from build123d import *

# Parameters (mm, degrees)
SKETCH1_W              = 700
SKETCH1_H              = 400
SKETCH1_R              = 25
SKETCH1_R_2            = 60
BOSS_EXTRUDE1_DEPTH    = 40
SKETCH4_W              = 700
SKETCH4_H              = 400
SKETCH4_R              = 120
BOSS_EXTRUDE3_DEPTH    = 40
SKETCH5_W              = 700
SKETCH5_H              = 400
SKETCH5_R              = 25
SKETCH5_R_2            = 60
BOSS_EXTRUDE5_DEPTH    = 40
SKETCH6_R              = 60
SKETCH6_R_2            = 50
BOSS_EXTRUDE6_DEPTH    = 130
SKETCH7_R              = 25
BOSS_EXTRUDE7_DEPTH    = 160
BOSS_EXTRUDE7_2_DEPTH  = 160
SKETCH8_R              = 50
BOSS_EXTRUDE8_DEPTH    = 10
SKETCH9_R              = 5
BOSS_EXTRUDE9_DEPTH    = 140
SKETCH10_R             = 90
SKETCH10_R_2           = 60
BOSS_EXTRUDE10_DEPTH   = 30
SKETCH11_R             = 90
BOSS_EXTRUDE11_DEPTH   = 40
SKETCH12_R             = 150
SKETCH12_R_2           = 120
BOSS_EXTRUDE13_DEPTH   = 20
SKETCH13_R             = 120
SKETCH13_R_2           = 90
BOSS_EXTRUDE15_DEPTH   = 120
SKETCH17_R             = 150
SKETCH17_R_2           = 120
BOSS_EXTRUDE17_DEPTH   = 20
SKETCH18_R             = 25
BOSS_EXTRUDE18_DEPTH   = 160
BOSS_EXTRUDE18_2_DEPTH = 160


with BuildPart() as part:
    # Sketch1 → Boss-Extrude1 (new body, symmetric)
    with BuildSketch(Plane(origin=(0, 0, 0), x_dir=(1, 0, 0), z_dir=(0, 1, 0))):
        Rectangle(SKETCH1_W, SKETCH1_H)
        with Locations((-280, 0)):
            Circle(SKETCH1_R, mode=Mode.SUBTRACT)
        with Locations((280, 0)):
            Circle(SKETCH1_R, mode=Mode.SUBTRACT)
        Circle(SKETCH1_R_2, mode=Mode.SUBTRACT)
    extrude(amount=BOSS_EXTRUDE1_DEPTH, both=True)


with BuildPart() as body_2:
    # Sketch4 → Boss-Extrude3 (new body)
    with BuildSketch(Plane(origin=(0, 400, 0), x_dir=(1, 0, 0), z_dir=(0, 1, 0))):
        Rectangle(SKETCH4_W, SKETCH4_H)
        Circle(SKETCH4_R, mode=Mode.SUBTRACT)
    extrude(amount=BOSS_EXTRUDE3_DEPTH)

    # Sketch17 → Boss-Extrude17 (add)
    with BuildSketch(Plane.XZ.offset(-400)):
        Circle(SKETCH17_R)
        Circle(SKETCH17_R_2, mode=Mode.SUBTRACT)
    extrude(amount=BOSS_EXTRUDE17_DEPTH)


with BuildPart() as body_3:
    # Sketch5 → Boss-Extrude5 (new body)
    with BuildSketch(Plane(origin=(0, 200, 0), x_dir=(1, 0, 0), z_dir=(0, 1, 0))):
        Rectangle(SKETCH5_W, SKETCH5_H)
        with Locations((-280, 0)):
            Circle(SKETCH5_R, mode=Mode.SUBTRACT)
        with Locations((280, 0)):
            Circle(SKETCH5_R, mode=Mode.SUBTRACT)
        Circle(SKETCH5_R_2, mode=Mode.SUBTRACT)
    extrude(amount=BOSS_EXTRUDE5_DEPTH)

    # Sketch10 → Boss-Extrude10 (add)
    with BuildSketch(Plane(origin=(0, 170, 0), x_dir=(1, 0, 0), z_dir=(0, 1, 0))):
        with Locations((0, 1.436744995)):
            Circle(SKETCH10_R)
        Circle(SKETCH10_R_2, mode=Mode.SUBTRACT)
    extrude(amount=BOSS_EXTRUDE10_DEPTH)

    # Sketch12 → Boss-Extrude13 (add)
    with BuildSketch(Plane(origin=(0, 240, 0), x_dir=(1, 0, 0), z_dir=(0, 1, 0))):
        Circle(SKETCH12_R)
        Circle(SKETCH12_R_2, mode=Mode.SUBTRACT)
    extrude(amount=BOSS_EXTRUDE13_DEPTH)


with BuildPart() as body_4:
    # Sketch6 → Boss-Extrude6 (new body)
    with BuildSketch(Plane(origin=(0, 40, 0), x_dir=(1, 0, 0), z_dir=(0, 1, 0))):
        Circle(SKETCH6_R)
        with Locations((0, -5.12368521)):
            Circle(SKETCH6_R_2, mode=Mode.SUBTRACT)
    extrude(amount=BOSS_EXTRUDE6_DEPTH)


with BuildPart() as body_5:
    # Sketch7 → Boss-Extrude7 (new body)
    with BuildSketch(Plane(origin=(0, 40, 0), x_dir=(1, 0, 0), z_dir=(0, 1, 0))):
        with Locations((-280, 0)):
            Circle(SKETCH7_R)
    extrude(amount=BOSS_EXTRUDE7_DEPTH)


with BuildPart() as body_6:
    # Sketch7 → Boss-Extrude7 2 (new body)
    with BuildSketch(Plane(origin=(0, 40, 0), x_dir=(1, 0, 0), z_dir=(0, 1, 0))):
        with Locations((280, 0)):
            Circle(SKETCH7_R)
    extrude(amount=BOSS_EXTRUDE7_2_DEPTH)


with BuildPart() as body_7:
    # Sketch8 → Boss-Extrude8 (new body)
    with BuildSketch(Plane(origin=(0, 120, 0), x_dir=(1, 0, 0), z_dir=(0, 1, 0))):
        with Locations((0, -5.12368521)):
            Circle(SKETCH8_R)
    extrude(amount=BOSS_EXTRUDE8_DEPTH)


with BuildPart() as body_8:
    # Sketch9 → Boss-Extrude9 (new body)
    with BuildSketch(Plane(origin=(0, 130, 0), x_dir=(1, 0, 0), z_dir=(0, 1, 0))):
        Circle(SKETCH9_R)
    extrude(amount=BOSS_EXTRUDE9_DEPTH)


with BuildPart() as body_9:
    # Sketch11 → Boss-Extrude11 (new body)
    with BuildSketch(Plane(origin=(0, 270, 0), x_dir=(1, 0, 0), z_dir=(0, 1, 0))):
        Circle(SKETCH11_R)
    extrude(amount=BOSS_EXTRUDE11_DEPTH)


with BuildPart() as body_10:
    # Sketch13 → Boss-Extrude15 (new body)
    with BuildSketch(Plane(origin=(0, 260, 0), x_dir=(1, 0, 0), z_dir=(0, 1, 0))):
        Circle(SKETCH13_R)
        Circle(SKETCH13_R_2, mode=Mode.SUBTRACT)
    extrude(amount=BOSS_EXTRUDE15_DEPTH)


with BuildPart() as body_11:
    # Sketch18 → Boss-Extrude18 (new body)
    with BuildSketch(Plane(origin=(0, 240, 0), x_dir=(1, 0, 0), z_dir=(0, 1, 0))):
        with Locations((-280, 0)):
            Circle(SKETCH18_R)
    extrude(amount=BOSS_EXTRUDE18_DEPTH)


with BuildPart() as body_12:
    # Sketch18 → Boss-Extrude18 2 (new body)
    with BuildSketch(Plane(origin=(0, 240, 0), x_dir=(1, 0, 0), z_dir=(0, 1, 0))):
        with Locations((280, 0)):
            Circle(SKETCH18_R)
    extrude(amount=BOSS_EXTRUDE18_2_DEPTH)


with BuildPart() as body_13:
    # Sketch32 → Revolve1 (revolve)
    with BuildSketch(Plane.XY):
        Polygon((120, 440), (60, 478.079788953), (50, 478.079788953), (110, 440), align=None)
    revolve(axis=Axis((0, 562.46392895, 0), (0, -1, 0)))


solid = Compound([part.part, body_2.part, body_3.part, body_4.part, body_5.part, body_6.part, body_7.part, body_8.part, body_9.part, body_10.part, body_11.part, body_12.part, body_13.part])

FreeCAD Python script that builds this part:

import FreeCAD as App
import Part
import Sketcher
Q = App.Units.Quantity

doc = App.newDocument("Part")
params = doc.addObject("Spreadsheet::Sheet", "Params")
for row, (alias, value) in enumerate([
    ("sketch1_diameter", "50 mm"),
    ("sketch1_diameter2", "120 mm"),
    ("sketch1_width", "700 mm"),
    ("sketch1_height", "400 mm"),
    ("pad1_length", "80 mm"),
    ("sketch2_diameter", "240 mm"),
    ("sketch2_width", "700 mm"),
    ("sketch2_height", "400 mm"),
    ("pad2_length", "40 mm"),
    ("sketch3_diameter", "300 mm"),
    ("sketch3_diameter2", "240 mm"),
    ("pad3_length", "20 mm"),
    ("sketch4_diameter", "50 mm"),
    ("sketch4_diameter2", "120 mm"),
    ("sketch4_width", "700 mm"),
    ("sketch4_height", "400 mm"),
    ("pad4_length", "40 mm"),
    ("sketch5_diameter", "180 mm"),
    ("sketch5_diameter2", "120 mm"),
    ("pad5_length", "30 mm"),
    ("sketch6_diameter", "300 mm"),
    ("sketch6_diameter2", "240 mm"),
    ("pad6_length", "20 mm"),
    ("sketch7_diameter", "120 mm"),
    ("sketch7_diameter2", "100 mm"),
    ("pad7_length", "130 mm"),
    ("sketch8_diameter", "50 mm"),
    ("pad8_length", "160 mm"),
    ("sketch9_diameter", "50 mm"),
    ("pad9_length", "160 mm"),
    ("sketch10_diameter", "100 mm"),
    ("pad10_length", "10 mm"),
    ("sketch11_diameter", "10 mm"),
    ("pad11_length", "140 mm"),
    ("sketch12_diameter", "180 mm"),
    ("pad12_length", "40 mm"),
    ("sketch13_diameter", "240 mm"),
    ("sketch13_diameter2", "180 mm"),
    ("pad13_length", "120 mm"),
    ("sketch14_diameter", "50 mm"),
    ("pad14_length", "160 mm"),
    ("sketch15_diameter", "50 mm"),
    ("pad15_length", "160 mm"),
    ("sketch16_width", "10 mm"),
    ("revolution_angle", "360 deg"),
], start=1):
    params.set(f"A{row}", alias)
    params.set(f"B{row}", "=" + value)
    params.setAlias(f"B{row}", alias)

body = doc.addObject("PartDesign::Body", "Body")

# Sketch on XZ plane
sketch1 = body.newObject("Sketcher::SketchObject", "Sketch")
sketch1.AttachmentSupport = (doc.getObject("XZ_Plane"), [""])
sketch1.MapMode = "FlatFace"
sketch1.addGeometry([
    Part.LineSegment(App.Vector(-350, -200, 0), App.Vector(-350, 200, 0)),  # 0
    Part.LineSegment(App.Vector(-350, 200, 0), App.Vector(350, 200, 0)),  # 1
    Part.LineSegment(App.Vector(350, 200, 0), App.Vector(350, -200, 0)),  # 2
    Part.LineSegment(App.Vector(350, -200, 0), App.Vector(-350, -200, 0)),  # 3
    Part.Circle(App.Vector(-280, 0, 0), App.Vector(0, 0, 1), 25),  # 4
    Part.Circle(App.Vector(0, 0, 0), App.Vector(0, 0, 1), 60),  # 5
    Part.Circle(App.Vector(280, 0, 0), App.Vector(0, 0, 1), 25),  # 6
], False)
sketch1.addConstraint([
    Sketcher.Constraint("Coincident", 0, 2, 1, 1),
    Sketcher.Constraint("Coincident", 1, 2, 2, 1),
    Sketcher.Constraint("Coincident", 2, 2, 3, 1),
    Sketcher.Constraint("Coincident", 3, 2, 0, 1),
    Sketcher.Constraint("Vertical", 0),
    Sketcher.Constraint("Horizontal", 1),
    Sketcher.Constraint("Vertical", 2),
    Sketcher.Constraint("Horizontal", 3),
    Sketcher.Constraint("Coincident", 5, 3, -1, 1),
    Sketcher.Constraint("Equal", 4, 6),
    Sketcher.Constraint("Symmetric", 4, 3, 6, 3, -1, 1),
    Sketcher.Constraint("Symmetric", 0, 2, 2, 2, -1, 1),
    Sketcher.Constraint("PointOnObject", 4, 3, -1),
    Sketcher.Constraint("Diameter", 4, Q("50 mm")),
    Sketcher.Constraint("Diameter", 5, Q("120 mm")),
    Sketcher.Constraint("DistanceX", 1, 1, 1, 2, Q("700 mm")),
    Sketcher.Constraint("DistanceY", 0, 1, 0, 2, Q("400 mm")),
    Sketcher.Constraint("DistanceX", 4, 3, -1, 1, Q("280 mm")),
])
sketch1.setExpression("Constraints[13]", "Params.sketch1_diameter")
sketch1.setExpression("Constraints[14]", "Params.sketch1_diameter2")
sketch1.setExpression("Constraints[15]", "Params.sketch1_width")
sketch1.setExpression("Constraints[16]", "Params.sketch1_height")
pad1 = body.newObject("PartDesign::Pad", "Pad")
pad1.Profile = sketch1
pad1.setExpression("Length", "Params.pad1_length")
pad1.Midplane = True
body2 = doc.addObject("PartDesign::Body", "Body001")

# Sketch on XZ plane
sketch2 = body2.newObject("Sketcher::SketchObject", "Sketch001")
sketch2.AttachmentSupport = (doc.getObject("XZ_Plane001"), [""])
sketch2.MapMode = "FlatFace"
sketch2.AttachmentOffset = App.Placement(App.Vector(0, 0, -400), App.Rotation())
sketch2.addGeometry([
    Part.LineSegment(App.Vector(-350, -200, 0), App.Vector(-350, 200, 0)),  # 0
    Part.LineSegment(App.Vector(-350, 200, 0), App.Vector(350, 200, 0)),  # 1
    Part.LineSegment(App.Vector(350, 200, 0), App.Vector(350, -200, 0)),  # 2
    Part.LineSegment(App.Vector(350, -200, 0), App.Vector(-350, -200, 0)),  # 3
    Part.Circle(App.Vector(0, 0, 0), App.Vector(0, 0, 1), 120),  # 4
], False)
sketch2.addConstraint([
    Sketcher.Constraint("Coincident", 0, 2, 1, 1),
    Sketcher.Constraint("Coincident", 1, 2, 2, 1),
    Sketcher.Constraint("Coincident", 2, 2, 3, 1),
    Sketcher.Constraint("Coincident", 3, 2, 0, 1),
    Sketcher.Constraint("Vertical", 0),
    Sketcher.Constraint("Horizontal", 1),
    Sketcher.Constraint("Vertical", 2),
    Sketcher.Constraint("Horizontal", 3),
    Sketcher.Constraint("Coincident", 4, 3, -1, 1),
    Sketcher.Constraint("Symmetric", 0, 2, 2, 2, -1, 1),
    Sketcher.Constraint("Diameter", 4, Q("240 mm")),
    Sketcher.Constraint("DistanceX", 1, 1, 1, 2, Q("700 mm")),
    Sketcher.Constraint("DistanceY", 0, 1, 0, 2, Q("400 mm")),
])
sketch2.setExpression("Constraints[10]", "Params.sketch2_diameter")
sketch2.setExpression("Constraints[11]", "Params.sketch2_width")
sketch2.setExpression("Constraints[12]", "Params.sketch2_height")
pad2 = body2.newObject("PartDesign::Pad", "Pad001")
pad2.Profile = sketch2
pad2.setExpression("Length", "Params.pad2_length")
pad2.Reversed = True

# Sketch on XZ plane
sketch3 = body2.newObject("Sketcher::SketchObject", "Sketch002")
sketch3.AttachmentSupport = (doc.getObject("XZ_Plane001"), [""])
sketch3.MapMode = "FlatFace"
sketch3.AttachmentOffset = App.Placement(App.Vector(0, 0, -400), App.Rotation())
sketch3.addGeometry([
    Part.Circle(App.Vector(0, 0, 0), App.Vector(0, 0, 1), 150),
    Part.Circle(App.Vector(0, 0, 0), App.Vector(0, 0, 1), 120),
], False)
sketch3.addConstraint([
    Sketcher.Constraint("Coincident", 0, 3, -1, 1),
    Sketcher.Constraint("Coincident", 1, 3, -1, 1),
    Sketcher.Constraint("Diameter", 0, Q("300 mm")),
    Sketcher.Constraint("Diameter", 1, Q("240 mm")),
])
sketch3.setExpression("Constraints[2]", "Params.sketch3_diameter")
sketch3.setExpression("Constraints[3]", "Params.sketch3_diameter2")
pad3 = body2.newObject("PartDesign::Pad", "Pad002")
pad3.Profile = sketch3
pad3.setExpression("Length", "Params.pad3_length")
body3 = doc.addObject("PartDesign::Body", "Body002")

# Sketch on XZ plane
sketch4 = body3.newObject("Sketcher::SketchObject", "Sketch003")
sketch4.AttachmentSupport = (doc.getObject("XZ_Plane002"), [""])
sketch4.MapMode = "FlatFace"
sketch4.AttachmentOffset = App.Placement(App.Vector(0, 0, -200), App.Rotation())
sketch4.addGeometry([
    Part.LineSegment(App.Vector(-350, -200, 0), App.Vector(-350, 200, 0)),  # 0
    Part.LineSegment(App.Vector(-350, 200, 0), App.Vector(350, 200, 0)),  # 1
    Part.LineSegment(App.Vector(350, 200, 0), App.Vector(350, -200, 0)),  # 2
    Part.LineSegment(App.Vector(350, -200, 0), App.Vector(-350, -200, 0)),  # 3
    Part.Circle(App.Vector(-280, 0, 0), App.Vector(0, 0, 1), 25),  # 4
    Part.Circle(App.Vector(0, 0, 0), App.Vector(0, 0, 1), 60),  # 5
    Part.Circle(App.Vector(280, 0, 0), App.Vector(0, 0, 1), 25),  # 6
], False)
sketch4.addConstraint([
    Sketcher.Constraint("Coincident", 0, 2, 1, 1),
    Sketcher.Constraint("Coincident", 1, 2, 2, 1),
    Sketcher.Constraint("Coincident", 2, 2, 3, 1),
    Sketcher.Constraint("Coincident", 3, 2, 0, 1),
    Sketcher.Constraint("Vertical", 0),
    Sketcher.Constraint("Horizontal", 1),
    Sketcher.Constraint("Vertical", 2),
    Sketcher.Constraint("Horizontal", 3),
    Sketcher.Constraint("Coincident", 5, 3, -1, 1),
    Sketcher.Constraint("Equal", 4, 6),
    Sketcher.Constraint("Symmetric", 4, 3, 6, 3, -1, 1),
    Sketcher.Constraint("Symmetric", 0, 2, 2, 2, -1, 1),
    Sketcher.Constraint("PointOnObject", 4, 3, -1),
    Sketcher.Constraint("Diameter", 4, Q("50 mm")),
    Sketcher.Constraint("Diameter", 5, Q("120 mm")),
    Sketcher.Constraint("DistanceX", 1, 1, 1, 2, Q("700 mm")),
    Sketcher.Constraint("DistanceY", 0, 1, 0, 2, Q("400 mm")),
    Sketcher.Constraint("DistanceX", 4, 3, -1, 1, Q("280 mm")),
])
sketch4.setExpression("Constraints[13]", "Params.sketch4_diameter")
sketch4.setExpression("Constraints[14]", "Params.sketch4_diameter2")
sketch4.setExpression("Constraints[15]", "Params.sketch4_width")
sketch4.setExpression("Constraints[16]", "Params.sketch4_height")
pad4 = body3.newObject("PartDesign::Pad", "Pad003")
pad4.Profile = sketch4
pad4.setExpression("Length", "Params.pad4_length")
pad4.Reversed = True

# Sketch on XZ plane
sketch5 = body3.newObject("Sketcher::SketchObject", "Sketch004")
sketch5.AttachmentSupport = (doc.getObject("XZ_Plane002"), [""])
sketch5.MapMode = "FlatFace"
sketch5.AttachmentOffset = App.Placement(App.Vector(0, 0, -170), App.Rotation())
sketch5.addGeometry([
    Part.Circle(App.Vector(0, -1, 0), App.Vector(0, 0, 1), 90),
    Part.Circle(App.Vector(0, 0, 0), App.Vector(0, 0, 1), 60),
], False)
sketch5.addConstraint([
    Sketcher.Constraint("Coincident", 1, 3, -1, 1),
    Sketcher.Constraint("PointOnObject", 0, 3, -2),
    Sketcher.Constraint("Diameter", 0, Q("180 mm")),
    Sketcher.Constraint("Diameter", 1, Q("120 mm")),
    Sketcher.Constraint("DistanceY", 0, 3, -1, 1, Q("1.436745 mm")),
])
sketch5.setExpression("Constraints[2]", "Params.sketch5_diameter")
sketch5.setExpression("Constraints[3]", "Params.sketch5_diameter2")
pad5 = body3.newObject("PartDesign::Pad", "Pad004")
pad5.Profile = sketch5
pad5.setExpression("Length", "Params.pad5_length")
pad5.Reversed = True

# Sketch on XZ plane
sketch6 = body3.newObject("Sketcher::SketchObject", "Sketch005")
sketch6.AttachmentSupport = (doc.getObject("XZ_Plane002"), [""])
sketch6.MapMode = "FlatFace"
sketch6.AttachmentOffset = App.Placement(App.Vector(0, 0, -240), App.Rotation())
sketch6.addGeometry([
    Part.Circle(App.Vector(0, 0, 0), App.Vector(0, 0, 1), 150),
    Part.Circle(App.Vector(0, 0, 0), App.Vector(0, 0, 1), 120),
], False)
sketch6.addConstraint([
    Sketcher.Constraint("Coincident", 0, 3, -1, 1),
    Sketcher.Constraint("Coincident", 1, 3, -1, 1),
    Sketcher.Constraint("Diameter", 0, Q("300 mm")),
    Sketcher.Constraint("Diameter", 1, Q("240 mm")),
])
sketch6.setExpression("Constraints[2]", "Params.sketch6_diameter")
sketch6.setExpression("Constraints[3]", "Params.sketch6_diameter2")
pad6 = body3.newObject("PartDesign::Pad", "Pad005")
pad6.Profile = sketch6
pad6.setExpression("Length", "Params.pad6_length")
pad6.Reversed = True
body4 = doc.addObject("PartDesign::Body", "Body003")

# Sketch on XZ plane
sketch7 = body4.newObject("Sketcher::SketchObject", "Sketch006")
sketch7.AttachmentSupport = (doc.getObject("XZ_Plane003"), [""])
sketch7.MapMode = "FlatFace"
sketch7.AttachmentOffset = App.Placement(App.Vector(0, 0, -40), App.Rotation())
sketch7.addGeometry([
    Part.Circle(App.Vector(0, 0, 0), App.Vector(0, 0, 1), 60),
    Part.Circle(App.Vector(0, 5, 0), App.Vector(0, 0, 1), 50),
], False)
sketch7.addConstraint([
    Sketcher.Constraint("Coincident", 0, 3, -1, 1),
    Sketcher.Constraint("PointOnObject", 1, 3, -2),
    Sketcher.Constraint("Diameter", 0, Q("120 mm")),
    Sketcher.Constraint("Diameter", 1, Q("100 mm")),
    Sketcher.Constraint("DistanceY", -1, 1, 1, 3, Q("5.123685 mm")),
])
sketch7.setExpression("Constraints[2]", "Params.sketch7_diameter")
sketch7.setExpression("Constraints[3]", "Params.sketch7_diameter2")
pad7 = body4.newObject("PartDesign::Pad", "Pad006")
pad7.Profile = sketch7
pad7.setExpression("Length", "Params.pad7_length")
pad7.Reversed = True
body5 = doc.addObject("PartDesign::Body", "Body004")

# Sketch on XZ plane
sketch8 = body5.newObject("Sketcher::SketchObject", "Sketch007")
sketch8.AttachmentSupport = (doc.getObject("XZ_Plane004"), [""])
sketch8.MapMode = "FlatFace"
sketch8.AttachmentOffset = App.Placement(App.Vector(0, 0, -40), App.Rotation())
sketch8.addGeometry(Part.Circle(App.Vector(-280, 0, 0), App.Vector(0, 0, 1), 25), False)
sketch8.addConstraint([
    Sketcher.Constraint("PointOnObject", 0, 3, -1),
    Sketcher.Constraint("Diameter", 0, Q("50 mm")),
    Sketcher.Constraint("DistanceX", 0, 3, -1, 1, Q("280 mm")),
])
sketch8.setExpression("Constraints[1]", "Params.sketch8_diameter")
pad8 = body5.newObject("PartDesign::Pad", "Pad007")
pad8.Profile = sketch8
pad8.setExpression("Length", "Params.pad8_length")
pad8.Reversed = True
body6 = doc.addObject("PartDesign::Body", "Body005")

# Sketch on XZ plane
sketch9 = body6.newObject("Sketcher::SketchObject", "Sketch008")
sketch9.AttachmentSupport = (doc.getObject("XZ_Plane005"), [""])
sketch9.MapMode = "FlatFace"
sketch9.AttachmentOffset = App.Placement(App.Vector(0, 0, -40), App.Rotation())
sketch9.addGeometry(Part.Circle(App.Vector(280, 0, 0), App.Vector(0, 0, 1), 25), False)
sketch9.addConstraint([
    Sketcher.Constraint("PointOnObject", 0, 3, -1),
    Sketcher.Constraint("Diameter", 0, Q("50 mm")),
    Sketcher.Constraint("DistanceX", -1, 1, 0, 3, Q("280 mm")),
])
sketch9.setExpression("Constraints[1]", "Params.sketch9_diameter")
pad9 = body6.newObject("PartDesign::Pad", "Pad008")
pad9.Profile = sketch9
pad9.setExpression("Length", "Params.pad9_length")
pad9.Reversed = True
body7 = doc.addObject("PartDesign::Body", "Body006")

# Sketch on XZ plane
sketch10 = body7.newObject("Sketcher::SketchObject", "Sketch009")
sketch10.AttachmentSupport = (doc.getObject("XZ_Plane006"), [""])
sketch10.MapMode = "FlatFace"
sketch10.AttachmentOffset = App.Placement(App.Vector(0, 0, -120), App.Rotation())
sketch10.addGeometry(Part.Circle(App.Vector(0, 5, 0), App.Vector(0, 0, 1), 50), False)
sketch10.addConstraint([
    Sketcher.Constraint("PointOnObject", 0, 3, -2),
    Sketcher.Constraint("Diameter", 0, Q("100 mm")),
    Sketcher.Constraint("DistanceY", -1, 1, 0, 3, Q("5.123685 mm")),
])
sketch10.setExpression("Constraints[1]", "Params.sketch10_diameter")
pad10 = body7.newObject("PartDesign::Pad", "Pad009")
pad10.Profile = sketch10
pad10.setExpression("Length", "Params.pad10_length")
pad10.Reversed = True
body8 = doc.addObject("PartDesign::Body", "Body007")

# Sketch on XZ plane
sketch11 = body8.newObject("Sketcher::SketchObject", "Sketch010")
sketch11.AttachmentSupport = (doc.getObject("XZ_Plane007"), [""])
sketch11.MapMode = "FlatFace"
sketch11.AttachmentOffset = App.Placement(App.Vector(0, 0, -130), App.Rotation())
sketch11.addGeometry(Part.Circle(App.Vector(0, 0, 0), App.Vector(0, 0, 1), 5), False)
sketch11.addConstraint([
    Sketcher.Constraint("Coincident", 0, 3, -1, 1),
    Sketcher.Constraint("Diameter", 0, Q("10 mm")),
])
sketch11.setExpression("Constraints[1]", "Params.sketch11_diameter")
pad11 = body8.newObject("PartDesign::Pad", "Pad010")
pad11.Profile = sketch11
pad11.setExpression("Length", "Params.pad11_length")
pad11.Reversed = True
body9 = doc.addObject("PartDesign::Body", "Body008")

# Sketch on XZ plane
sketch12 = body9.newObject("Sketcher::SketchObject", "Sketch011")
sketch12.AttachmentSupport = (doc.getObject("XZ_Plane008"), [""])
sketch12.MapMode = "FlatFace"
sketch12.AttachmentOffset = App.Placement(App.Vector(0, 0, -270), App.Rotation())
sketch12.addGeometry(Part.Circle(App.Vector(0, 0, 0), App.Vector(0, 0, 1), 90), False)
sketch12.addConstraint([
    Sketcher.Constraint("Coincident", 0, 3, -1, 1),
    Sketcher.Constraint("Diameter", 0, Q("180 mm")),
])
sketch12.setExpression("Constraints[1]", "Params.sketch12_diameter")
pad12 = body9.newObject("PartDesign::Pad", "Pad011")
pad12.Profile = sketch12
pad12.setExpression("Length", "Params.pad12_length")
pad12.Reversed = True
body10 = doc.addObject("PartDesign::Body", "Body009")

# Sketch on XZ plane
sketch13 = body10.newObject("Sketcher::SketchObject", "Sketch012")
sketch13.AttachmentSupport = (doc.getObject("XZ_Plane009"), [""])
sketch13.MapMode = "FlatFace"
sketch13.AttachmentOffset = App.Placement(App.Vector(0, 0, -260), App.Rotation())
sketch13.addGeometry([
    Part.Circle(App.Vector(0, 0, 0), App.Vector(0, 0, 1), 120),
    Part.Circle(App.Vector(0, 0, 0), App.Vector(0, 0, 1), 90),
], False)
sketch13.addConstraint([
    Sketcher.Constraint("Coincident", 0, 3, -1, 1),
    Sketcher.Constraint("Coincident", 1, 3, -1, 1),
    Sketcher.Constraint("Diameter", 0, Q("240 mm")),
    Sketcher.Constraint("Diameter", 1, Q("180 mm")),
])
sketch13.setExpression("Constraints[2]", "Params.sketch13_diameter")
sketch13.setExpression("Constraints[3]", "Params.sketch13_diameter2")
pad13 = body10.newObject("PartDesign::Pad", "Pad012")
pad13.Profile = sketch13
pad13.setExpression("Length", "Params.pad13_length")
pad13.Reversed = True
body11 = doc.addObject("PartDesign::Body", "Body010")

# Sketch on XZ plane
sketch14 = body11.newObject("Sketcher::SketchObject", "Sketch013")
sketch14.AttachmentSupport = (doc.getObject("XZ_Plane010"), [""])
sketch14.MapMode = "FlatFace"
sketch14.AttachmentOffset = App.Placement(App.Vector(0, 0, -240), App.Rotation())
sketch14.addGeometry(Part.Circle(App.Vector(-280, 0, 0), App.Vector(0, 0, 1), 25), False)
sketch14.addConstraint([
    Sketcher.Constraint("PointOnObject", 0, 3, -1),
    Sketcher.Constraint("Diameter", 0, Q("50 mm")),
    Sketcher.Constraint("DistanceX", 0, 3, -1, 1, Q("280 mm")),
])
sketch14.setExpression("Constraints[1]", "Params.sketch14_diameter")
pad14 = body11.newObject("PartDesign::Pad", "Pad013")
pad14.Profile = sketch14
pad14.setExpression("Length", "Params.pad14_length")
pad14.Reversed = True
body12 = doc.addObject("PartDesign::Body", "Body011")

# Sketch on XZ plane
sketch15 = body12.newObject("Sketcher::SketchObject", "Sketch014")
sketch15.AttachmentSupport = (doc.getObject("XZ_Plane011"), [""])
sketch15.MapMode = "FlatFace"
sketch15.AttachmentOffset = App.Placement(App.Vector(0, 0, -240), App.Rotation())
sketch15.addGeometry(Part.Circle(App.Vector(280, 0, 0), App.Vector(0, 0, 1), 25), False)
sketch15.addConstraint([
    Sketcher.Constraint("PointOnObject", 0, 3, -1),
    Sketcher.Constraint("Diameter", 0, Q("50 mm")),
    Sketcher.Constraint("DistanceX", -1, 1, 0, 3, Q("280 mm")),
])
sketch15.setExpression("Constraints[1]", "Params.sketch15_diameter")
pad15 = body12.newObject("PartDesign::Pad", "Pad014")
pad15.Profile = sketch15
pad15.setExpression("Length", "Params.pad15_length")
pad15.Reversed = True
body13 = doc.addObject("PartDesign::Body", "Body012")

# Sketch on XY plane
sketch16 = body13.newObject("Sketcher::SketchObject", "Sketch015")
sketch16.AttachmentSupport = (doc.getObject("XY_Plane012"), [""])
sketch16.MapMode = "FlatFace"
sketch16.addGeometry([
    Part.LineSegment(App.Vector(120, 440, 0), App.Vector(60, 478, 0)),
    Part.LineSegment(App.Vector(60, 478, 0), App.Vector(50, 478, 0)),
    Part.LineSegment(App.Vector(50, 478, 0), App.Vector(110, 440, 0)),
    Part.LineSegment(App.Vector(110, 440, 0), App.Vector(120, 440, 0)),
], False)
sketch16.addConstraint([
    Sketcher.Constraint("Coincident", 0, 2, 1, 1),
    Sketcher.Constraint("Coincident", 1, 2, 2, 1),
    Sketcher.Constraint("Coincident", 2, 2, 3, 1),
    Sketcher.Constraint("Coincident", 3, 2, 0, 1),
    Sketcher.Constraint("Horizontal", 1),
    Sketcher.Constraint("Horizontal", 3),
    Sketcher.Constraint("Parallel", 0, 2),
    Sketcher.Constraint("DistanceX", 1, 2, 1, 1, Q("10 mm")),
    Sketcher.Constraint("DistanceX", -1, 1, 0, 2, Q("60 mm")),
    Sketcher.Constraint("DistanceX", -1, 1, 2, 2, Q("110 mm")),
    Sketcher.Constraint("DistanceY", -1, 1, 2, 2, Q("440 mm")),
    Sketcher.Constraint("DistanceY", -1, 1, 0, 2, Q("478.079789 mm")),
])
sketch16.setExpression("Constraints[7]", "Params.sketch16_width")
revolution = body13.newObject("PartDesign::Revolution", "Revolution")
revolution.Profile = sketch16
revolution.ReferenceAxis = (sketch16, ["V_Axis"])
revolution.setExpression("Angle", "Params.revolution_angle")

doc.recompute()
